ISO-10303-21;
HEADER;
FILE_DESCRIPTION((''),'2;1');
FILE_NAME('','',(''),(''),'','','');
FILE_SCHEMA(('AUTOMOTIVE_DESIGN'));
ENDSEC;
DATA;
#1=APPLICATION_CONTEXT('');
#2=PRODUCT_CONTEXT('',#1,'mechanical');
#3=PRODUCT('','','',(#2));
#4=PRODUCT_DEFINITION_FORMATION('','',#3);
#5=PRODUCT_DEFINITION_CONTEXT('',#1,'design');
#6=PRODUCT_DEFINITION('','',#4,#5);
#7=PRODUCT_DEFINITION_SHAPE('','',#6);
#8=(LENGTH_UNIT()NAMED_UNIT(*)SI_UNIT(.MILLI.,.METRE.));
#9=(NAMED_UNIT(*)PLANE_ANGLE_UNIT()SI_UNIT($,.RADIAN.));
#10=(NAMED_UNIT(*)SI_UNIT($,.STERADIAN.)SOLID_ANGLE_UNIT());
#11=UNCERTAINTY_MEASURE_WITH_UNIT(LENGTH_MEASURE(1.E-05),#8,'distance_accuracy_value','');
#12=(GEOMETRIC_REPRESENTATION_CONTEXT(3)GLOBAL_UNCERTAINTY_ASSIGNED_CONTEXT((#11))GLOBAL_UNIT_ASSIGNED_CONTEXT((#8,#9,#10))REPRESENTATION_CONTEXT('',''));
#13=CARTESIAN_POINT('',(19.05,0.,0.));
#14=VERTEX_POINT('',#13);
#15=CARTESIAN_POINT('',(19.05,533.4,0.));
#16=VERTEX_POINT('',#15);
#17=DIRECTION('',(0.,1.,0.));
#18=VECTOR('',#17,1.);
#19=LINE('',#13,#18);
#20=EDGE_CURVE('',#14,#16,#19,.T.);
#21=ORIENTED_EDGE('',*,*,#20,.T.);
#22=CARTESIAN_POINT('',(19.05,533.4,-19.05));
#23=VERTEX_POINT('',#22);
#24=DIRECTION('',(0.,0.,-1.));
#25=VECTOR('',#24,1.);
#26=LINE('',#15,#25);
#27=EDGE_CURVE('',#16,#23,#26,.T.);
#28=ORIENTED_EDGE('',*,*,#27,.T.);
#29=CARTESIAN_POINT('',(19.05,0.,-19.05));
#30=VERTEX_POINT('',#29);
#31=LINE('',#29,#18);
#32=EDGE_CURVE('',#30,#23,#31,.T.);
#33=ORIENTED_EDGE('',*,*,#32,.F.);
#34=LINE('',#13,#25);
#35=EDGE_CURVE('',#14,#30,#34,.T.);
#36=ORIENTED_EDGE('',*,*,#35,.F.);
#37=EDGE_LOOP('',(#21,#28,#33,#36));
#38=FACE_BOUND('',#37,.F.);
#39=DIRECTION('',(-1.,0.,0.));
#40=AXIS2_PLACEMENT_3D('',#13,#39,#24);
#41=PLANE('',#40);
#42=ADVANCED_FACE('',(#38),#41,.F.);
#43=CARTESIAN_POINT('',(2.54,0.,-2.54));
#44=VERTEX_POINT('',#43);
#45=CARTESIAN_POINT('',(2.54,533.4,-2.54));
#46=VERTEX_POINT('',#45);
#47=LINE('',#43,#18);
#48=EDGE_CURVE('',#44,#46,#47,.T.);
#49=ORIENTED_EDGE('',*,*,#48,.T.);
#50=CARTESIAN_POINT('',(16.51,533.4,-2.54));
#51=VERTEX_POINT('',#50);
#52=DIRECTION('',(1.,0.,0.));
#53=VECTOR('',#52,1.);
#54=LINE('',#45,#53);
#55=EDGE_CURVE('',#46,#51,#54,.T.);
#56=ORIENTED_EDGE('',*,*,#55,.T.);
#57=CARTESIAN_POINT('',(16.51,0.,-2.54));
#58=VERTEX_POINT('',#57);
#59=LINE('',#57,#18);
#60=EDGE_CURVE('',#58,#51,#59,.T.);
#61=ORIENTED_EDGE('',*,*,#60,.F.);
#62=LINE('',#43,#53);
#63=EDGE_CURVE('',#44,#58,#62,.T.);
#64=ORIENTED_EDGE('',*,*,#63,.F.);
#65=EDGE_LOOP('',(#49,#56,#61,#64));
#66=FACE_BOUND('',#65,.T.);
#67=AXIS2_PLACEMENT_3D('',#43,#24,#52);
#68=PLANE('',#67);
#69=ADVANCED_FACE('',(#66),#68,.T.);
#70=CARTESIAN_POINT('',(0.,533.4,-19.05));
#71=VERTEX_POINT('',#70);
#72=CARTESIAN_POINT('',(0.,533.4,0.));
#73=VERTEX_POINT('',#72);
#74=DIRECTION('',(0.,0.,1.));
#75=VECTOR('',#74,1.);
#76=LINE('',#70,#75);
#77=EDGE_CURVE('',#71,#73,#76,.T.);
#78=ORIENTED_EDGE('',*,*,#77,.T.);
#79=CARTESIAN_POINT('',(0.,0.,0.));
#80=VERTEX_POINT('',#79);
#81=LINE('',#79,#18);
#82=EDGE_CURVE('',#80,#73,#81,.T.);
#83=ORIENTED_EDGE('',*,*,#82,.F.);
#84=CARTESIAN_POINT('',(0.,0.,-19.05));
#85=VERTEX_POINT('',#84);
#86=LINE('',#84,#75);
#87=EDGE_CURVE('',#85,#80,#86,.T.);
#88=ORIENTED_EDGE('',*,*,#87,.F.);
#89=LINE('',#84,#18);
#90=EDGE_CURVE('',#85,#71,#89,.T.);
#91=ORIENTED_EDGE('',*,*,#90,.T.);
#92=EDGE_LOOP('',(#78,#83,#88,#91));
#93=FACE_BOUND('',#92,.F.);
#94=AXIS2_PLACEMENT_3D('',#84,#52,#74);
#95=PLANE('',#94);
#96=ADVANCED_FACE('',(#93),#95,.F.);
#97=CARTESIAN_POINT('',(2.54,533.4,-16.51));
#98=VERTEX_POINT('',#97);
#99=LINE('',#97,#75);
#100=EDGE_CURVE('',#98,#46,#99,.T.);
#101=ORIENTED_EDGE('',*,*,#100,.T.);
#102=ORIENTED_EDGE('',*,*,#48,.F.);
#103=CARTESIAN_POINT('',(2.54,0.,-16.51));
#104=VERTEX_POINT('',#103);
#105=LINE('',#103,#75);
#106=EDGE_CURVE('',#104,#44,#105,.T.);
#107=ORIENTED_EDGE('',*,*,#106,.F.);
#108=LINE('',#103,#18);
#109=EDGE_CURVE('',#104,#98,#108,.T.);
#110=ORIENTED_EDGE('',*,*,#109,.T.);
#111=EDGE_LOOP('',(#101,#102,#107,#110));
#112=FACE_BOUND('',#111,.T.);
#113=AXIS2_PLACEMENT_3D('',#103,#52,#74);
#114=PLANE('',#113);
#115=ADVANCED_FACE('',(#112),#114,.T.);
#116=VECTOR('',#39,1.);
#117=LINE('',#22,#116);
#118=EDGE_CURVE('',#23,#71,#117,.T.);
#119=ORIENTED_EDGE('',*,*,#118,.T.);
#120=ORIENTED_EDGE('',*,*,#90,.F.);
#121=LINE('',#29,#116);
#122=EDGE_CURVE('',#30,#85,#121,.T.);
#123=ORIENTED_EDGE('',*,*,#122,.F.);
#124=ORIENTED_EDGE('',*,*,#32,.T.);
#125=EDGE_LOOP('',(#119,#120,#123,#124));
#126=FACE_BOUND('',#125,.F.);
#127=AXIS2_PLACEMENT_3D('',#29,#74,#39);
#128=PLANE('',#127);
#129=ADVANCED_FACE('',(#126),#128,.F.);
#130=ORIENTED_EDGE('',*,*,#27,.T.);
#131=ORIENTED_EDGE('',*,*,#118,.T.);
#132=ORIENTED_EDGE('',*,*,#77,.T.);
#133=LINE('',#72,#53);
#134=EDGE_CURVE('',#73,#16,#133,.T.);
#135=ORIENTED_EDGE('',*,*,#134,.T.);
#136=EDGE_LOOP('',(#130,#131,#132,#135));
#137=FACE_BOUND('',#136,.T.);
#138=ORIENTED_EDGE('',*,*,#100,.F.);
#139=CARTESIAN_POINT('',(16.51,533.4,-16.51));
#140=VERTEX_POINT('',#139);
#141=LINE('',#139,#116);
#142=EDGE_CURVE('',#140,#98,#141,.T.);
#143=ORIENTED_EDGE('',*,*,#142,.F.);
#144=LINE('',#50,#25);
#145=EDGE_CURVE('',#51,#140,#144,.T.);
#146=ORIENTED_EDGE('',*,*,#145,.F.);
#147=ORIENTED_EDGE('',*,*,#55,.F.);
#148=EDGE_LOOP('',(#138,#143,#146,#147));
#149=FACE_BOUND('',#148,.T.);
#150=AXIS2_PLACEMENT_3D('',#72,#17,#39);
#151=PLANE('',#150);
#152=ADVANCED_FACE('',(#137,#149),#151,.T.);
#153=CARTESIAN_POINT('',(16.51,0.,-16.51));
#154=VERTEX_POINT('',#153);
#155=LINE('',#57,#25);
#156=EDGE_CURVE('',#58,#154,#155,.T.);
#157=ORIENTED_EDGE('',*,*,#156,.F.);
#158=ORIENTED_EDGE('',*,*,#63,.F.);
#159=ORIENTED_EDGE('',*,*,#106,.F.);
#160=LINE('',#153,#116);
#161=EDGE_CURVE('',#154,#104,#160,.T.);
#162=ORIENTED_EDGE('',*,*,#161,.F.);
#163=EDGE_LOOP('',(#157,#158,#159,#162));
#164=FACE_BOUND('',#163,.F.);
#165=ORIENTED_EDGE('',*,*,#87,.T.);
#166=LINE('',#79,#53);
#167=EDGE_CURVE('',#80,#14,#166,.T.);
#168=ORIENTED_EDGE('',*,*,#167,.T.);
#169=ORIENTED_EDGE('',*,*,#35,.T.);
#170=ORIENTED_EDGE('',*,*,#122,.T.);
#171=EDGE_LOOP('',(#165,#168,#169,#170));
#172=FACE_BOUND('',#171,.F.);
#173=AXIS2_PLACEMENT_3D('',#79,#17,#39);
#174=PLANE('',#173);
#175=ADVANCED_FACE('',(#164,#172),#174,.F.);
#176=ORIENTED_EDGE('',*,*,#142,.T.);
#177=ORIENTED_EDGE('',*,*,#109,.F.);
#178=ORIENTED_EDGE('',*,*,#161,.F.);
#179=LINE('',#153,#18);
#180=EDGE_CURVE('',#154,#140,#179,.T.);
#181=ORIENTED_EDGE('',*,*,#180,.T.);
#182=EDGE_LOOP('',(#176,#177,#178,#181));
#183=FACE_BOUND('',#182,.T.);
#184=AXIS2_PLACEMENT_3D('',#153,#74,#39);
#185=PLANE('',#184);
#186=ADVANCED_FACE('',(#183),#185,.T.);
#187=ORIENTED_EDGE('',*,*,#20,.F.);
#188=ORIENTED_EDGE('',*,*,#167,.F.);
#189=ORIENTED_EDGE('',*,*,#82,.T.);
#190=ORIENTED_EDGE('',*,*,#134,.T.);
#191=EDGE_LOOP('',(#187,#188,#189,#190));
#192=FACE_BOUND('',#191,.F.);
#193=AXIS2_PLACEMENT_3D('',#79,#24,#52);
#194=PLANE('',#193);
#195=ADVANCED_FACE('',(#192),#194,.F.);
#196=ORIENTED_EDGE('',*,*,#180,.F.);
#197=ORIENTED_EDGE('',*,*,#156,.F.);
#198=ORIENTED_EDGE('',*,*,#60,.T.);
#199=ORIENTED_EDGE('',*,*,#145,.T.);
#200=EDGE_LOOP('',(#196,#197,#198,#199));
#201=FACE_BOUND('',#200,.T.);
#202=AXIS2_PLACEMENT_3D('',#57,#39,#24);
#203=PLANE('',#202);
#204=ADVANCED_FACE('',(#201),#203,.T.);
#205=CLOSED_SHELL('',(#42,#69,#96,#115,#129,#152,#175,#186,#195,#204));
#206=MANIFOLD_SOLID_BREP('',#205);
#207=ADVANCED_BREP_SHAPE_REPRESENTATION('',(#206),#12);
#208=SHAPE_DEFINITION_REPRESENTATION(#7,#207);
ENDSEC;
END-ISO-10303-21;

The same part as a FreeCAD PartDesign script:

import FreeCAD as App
import Part
import Sketcher
from FreeCAD import Vector
Q = App.Units.Quantity

doc = App.newDocument("Part")
body = doc.addObject("PartDesign::Body", "Body")

# Sketch on XZ plane
sketch1 = body.newObject("Sketcher::SketchObject", "Sketch")
sketch1.AttachmentSupport = (doc.getObject("XZ_Plane"), [""])
sketch1.MapMode = "FlatFace"
sketch1.addGeometry([
    Part.LineSegment(Vector(0, -19, 0), Vector(0, 0, 0)),  # 0
    Part.LineSegment(Vector(0, 0, 0), Vector(19, 0, 0)),  # 1
    Part.LineSegment(Vector(19, 0, 0), Vector(19, -19, 0)),  # 2
    Part.LineSegment(Vector(19, -19, 0), Vector(0, -19, 0)),  # 3
    Part.LineSegment(Vector(17, -3, 0), Vector(3, -3, 0)),  # 4
    Part.LineSegment(Vector(3, -3, 0), Vector(3, -17, 0)),  # 5
    Part.LineSegment(Vector(3, -17, 0), Vector(17, -17, 0)),  # 6
    Part.LineSegment(Vector(17, -17, 0), Vector(17, -3, 0)),  # 7
], False)
sketch1.addConstraint([
    Sketcher.Constraint("Coincident", 0, 2, 1, 1),
    Sketcher.Constraint("Coincident", 1, 2, 2, 1),
    Sketcher.Constraint("Coincident", 2, 2, 3, 1),
    Sketcher.Constraint("Coincident", 3, 2, 0, 1),
    Sketcher.Constraint("Coincident", 4, 2, 5, 1),
    Sketcher.Constraint("Coincident", 5, 2, 6, 1),
    Sketcher.Constraint("Coincident", 6, 2, 7, 1),
    Sketcher.Constraint("Coincident", 7, 2, 4, 1),
    Sketcher.Constraint("Vertical", 0),
    Sketcher.Constraint("Horizontal", 1),
    Sketcher.Constraint("Vertical", 2),
    Sketcher.Constraint("Horizontal", 3),
    Sketcher.Constraint("Horizontal", 4),
    Sketcher.Constraint("Vertical", 5),
    Sketcher.Constraint("Horizontal", 6),
    Sketcher.Constraint("Vertical", 7),
    Sketcher.Constraint("Coincident", 0, 2, -1, 1),
    Sketcher.Constraint("Equal", 3, 0),
    Sketcher.Constraint("Equal", 6, 5),
    Sketcher.Constraint("DistanceX", 1, 1, 1, 2, Q("0.75 in")),
    Sketcher.Constraint("DistanceX", -1, 1, 4, 2, Q("0.1 in")),
    Sketcher.Constraint("DistanceY", 4, 2, -1, 1, Q("0.1 in")),
    Sketcher.Constraint("DistanceY", 3, 2, 5, 2, Q("0.1 in")),
])
pad1 = body.newObject("PartDesign::Pad", "Pad")
pad1.Profile = sketch1
pad1.Length = Q("21 in")
pad1.Reversed = True

doc.recompute()
